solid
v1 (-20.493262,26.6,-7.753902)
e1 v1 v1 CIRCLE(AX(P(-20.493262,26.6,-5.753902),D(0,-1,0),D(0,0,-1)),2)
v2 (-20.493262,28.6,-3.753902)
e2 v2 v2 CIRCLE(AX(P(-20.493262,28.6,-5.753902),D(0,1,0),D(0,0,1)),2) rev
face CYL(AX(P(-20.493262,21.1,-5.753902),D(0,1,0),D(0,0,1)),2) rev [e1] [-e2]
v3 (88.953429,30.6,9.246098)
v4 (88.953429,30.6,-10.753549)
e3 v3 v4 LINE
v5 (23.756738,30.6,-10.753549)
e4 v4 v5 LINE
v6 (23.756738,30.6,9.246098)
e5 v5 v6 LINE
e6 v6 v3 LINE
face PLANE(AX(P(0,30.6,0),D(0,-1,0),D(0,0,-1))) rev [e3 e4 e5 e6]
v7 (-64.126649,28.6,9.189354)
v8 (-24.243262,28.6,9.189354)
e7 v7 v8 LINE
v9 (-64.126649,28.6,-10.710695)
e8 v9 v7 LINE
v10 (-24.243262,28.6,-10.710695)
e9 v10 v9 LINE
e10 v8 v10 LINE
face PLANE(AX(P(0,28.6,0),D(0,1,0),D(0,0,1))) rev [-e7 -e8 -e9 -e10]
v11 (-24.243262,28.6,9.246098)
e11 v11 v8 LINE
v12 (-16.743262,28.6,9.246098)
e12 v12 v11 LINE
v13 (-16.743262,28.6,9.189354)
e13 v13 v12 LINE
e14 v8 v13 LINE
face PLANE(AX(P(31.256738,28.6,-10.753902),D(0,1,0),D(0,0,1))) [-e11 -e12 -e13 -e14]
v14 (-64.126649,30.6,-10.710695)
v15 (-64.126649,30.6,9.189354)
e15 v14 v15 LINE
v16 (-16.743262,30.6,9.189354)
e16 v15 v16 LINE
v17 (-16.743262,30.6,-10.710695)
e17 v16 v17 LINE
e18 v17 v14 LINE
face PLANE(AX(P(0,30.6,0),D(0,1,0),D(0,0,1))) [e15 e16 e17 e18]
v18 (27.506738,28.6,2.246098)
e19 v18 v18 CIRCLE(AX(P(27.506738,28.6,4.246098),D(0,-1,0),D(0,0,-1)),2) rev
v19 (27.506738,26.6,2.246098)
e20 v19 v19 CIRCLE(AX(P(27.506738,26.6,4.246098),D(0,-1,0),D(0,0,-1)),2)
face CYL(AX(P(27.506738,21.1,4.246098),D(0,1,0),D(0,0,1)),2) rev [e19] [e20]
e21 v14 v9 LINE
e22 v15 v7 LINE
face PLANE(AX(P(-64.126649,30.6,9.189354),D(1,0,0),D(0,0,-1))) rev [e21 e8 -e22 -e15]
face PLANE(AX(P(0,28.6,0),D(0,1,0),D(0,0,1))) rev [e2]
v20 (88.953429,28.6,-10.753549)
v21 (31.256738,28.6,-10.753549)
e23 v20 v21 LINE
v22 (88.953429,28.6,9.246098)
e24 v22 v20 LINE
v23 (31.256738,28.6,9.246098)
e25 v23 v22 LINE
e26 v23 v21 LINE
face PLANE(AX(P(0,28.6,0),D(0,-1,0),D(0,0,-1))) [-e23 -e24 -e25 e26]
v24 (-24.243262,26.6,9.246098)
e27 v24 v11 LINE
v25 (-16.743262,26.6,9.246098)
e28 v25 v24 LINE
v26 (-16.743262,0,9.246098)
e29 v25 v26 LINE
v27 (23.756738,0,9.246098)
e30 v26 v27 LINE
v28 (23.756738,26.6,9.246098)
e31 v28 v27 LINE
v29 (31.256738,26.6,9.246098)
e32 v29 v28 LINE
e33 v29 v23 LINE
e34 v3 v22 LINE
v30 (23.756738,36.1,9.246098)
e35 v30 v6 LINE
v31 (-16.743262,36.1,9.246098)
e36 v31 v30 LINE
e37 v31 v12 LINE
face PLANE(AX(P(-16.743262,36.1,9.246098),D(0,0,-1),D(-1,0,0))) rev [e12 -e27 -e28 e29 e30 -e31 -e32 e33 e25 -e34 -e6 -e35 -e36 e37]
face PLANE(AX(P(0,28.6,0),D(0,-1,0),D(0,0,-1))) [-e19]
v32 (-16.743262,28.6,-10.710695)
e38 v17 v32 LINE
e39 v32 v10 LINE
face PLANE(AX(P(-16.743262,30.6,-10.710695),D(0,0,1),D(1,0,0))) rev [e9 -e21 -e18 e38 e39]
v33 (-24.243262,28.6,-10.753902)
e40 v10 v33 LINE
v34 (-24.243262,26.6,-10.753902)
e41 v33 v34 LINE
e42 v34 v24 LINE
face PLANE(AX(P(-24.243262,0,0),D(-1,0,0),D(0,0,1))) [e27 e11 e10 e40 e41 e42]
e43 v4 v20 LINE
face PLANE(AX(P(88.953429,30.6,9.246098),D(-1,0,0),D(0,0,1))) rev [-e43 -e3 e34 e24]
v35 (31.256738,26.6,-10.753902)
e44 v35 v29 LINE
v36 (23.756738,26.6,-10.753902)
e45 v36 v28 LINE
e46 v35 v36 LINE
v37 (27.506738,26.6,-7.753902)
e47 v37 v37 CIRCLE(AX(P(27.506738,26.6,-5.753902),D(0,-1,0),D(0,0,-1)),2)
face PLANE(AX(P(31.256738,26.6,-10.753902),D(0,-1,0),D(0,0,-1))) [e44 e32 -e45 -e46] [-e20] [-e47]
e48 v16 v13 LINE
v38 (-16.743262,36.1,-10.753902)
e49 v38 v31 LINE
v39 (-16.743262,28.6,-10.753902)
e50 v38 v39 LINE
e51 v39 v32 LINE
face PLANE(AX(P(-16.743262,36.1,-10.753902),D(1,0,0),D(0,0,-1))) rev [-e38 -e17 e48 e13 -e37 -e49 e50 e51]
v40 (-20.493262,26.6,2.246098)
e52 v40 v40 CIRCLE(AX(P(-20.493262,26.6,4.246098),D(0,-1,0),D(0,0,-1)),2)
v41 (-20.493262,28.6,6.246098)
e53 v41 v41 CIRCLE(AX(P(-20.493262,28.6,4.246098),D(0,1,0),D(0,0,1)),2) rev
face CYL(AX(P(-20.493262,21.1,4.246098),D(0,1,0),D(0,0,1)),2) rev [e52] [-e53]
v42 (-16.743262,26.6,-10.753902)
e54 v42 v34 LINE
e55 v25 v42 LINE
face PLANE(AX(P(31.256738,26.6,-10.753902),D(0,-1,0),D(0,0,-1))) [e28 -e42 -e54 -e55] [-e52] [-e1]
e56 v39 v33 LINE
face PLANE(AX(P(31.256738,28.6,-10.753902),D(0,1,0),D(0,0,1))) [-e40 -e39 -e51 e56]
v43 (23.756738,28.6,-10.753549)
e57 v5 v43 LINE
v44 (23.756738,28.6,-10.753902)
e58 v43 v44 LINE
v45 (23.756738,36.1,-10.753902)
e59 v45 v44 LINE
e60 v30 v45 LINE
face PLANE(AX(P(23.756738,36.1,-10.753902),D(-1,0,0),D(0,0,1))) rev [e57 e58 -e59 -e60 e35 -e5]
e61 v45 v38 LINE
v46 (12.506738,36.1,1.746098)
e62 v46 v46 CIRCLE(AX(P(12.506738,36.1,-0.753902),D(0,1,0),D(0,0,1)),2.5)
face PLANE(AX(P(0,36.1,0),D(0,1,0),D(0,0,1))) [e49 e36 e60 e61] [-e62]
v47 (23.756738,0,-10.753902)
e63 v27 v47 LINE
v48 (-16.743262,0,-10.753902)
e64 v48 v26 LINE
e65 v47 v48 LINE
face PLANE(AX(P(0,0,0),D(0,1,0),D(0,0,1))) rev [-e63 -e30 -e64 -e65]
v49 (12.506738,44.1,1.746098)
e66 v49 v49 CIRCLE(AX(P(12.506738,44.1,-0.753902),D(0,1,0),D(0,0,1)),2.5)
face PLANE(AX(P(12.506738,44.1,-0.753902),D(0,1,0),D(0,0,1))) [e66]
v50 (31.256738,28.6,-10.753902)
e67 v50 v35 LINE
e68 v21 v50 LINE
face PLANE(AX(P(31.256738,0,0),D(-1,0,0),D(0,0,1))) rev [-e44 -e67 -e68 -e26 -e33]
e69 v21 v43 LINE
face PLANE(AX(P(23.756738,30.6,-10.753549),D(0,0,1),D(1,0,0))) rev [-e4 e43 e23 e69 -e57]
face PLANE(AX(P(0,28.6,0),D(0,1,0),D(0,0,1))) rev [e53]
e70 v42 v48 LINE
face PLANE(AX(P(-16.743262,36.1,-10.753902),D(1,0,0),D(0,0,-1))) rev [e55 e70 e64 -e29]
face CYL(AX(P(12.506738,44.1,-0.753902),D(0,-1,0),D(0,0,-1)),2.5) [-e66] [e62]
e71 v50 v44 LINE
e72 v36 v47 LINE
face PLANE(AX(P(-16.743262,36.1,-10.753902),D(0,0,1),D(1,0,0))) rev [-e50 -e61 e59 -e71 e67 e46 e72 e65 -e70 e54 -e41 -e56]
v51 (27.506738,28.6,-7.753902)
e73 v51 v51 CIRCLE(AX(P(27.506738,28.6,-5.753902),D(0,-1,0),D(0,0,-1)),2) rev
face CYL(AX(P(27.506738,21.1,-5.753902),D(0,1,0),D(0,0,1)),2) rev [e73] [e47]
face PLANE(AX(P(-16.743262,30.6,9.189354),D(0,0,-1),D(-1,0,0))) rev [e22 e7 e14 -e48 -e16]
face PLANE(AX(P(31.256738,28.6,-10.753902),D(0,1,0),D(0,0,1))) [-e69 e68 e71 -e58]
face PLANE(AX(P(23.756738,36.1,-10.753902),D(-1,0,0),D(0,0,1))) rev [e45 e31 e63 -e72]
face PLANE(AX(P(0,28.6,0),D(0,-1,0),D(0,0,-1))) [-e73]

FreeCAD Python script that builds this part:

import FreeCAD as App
import Part
import Sketcher
from FreeCAD import Vector


def add_polygon(sketch, points):
    """Adds a closed chain of lines whose ends are joined by coincident constraints."""
    first, n = sketch.GeometryCount, len(points)
    for a, b in zip(points, points[1:] + points[:1]):
        sketch.addGeometry(Part.LineSegment(App.Vector(*a, 0), App.Vector(*b, 0)), False)
    for i in range(n):
        sketch.addConstraint(Sketcher.Constraint("Coincident", first + i, 2, first + (i + 1) % n, 1))

doc = App.newDocument("Part")
body = doc.addObject("PartDesign::Body", "Body")

# Sketch on XZ plane
sketch1 = body.newObject("Sketcher::SketchObject", "Sketch")
sketch1.AttachmentSupport = (doc.getObject("XZ_Plane"), [""])
sketch1.MapMode = "FlatFace"
add_polygon(sketch1, [(-17, -11), (-17, 9), (24, 9), (24, -11)])  # lines 0-3
sketch1.addConstraint([
    Sketcher.Constraint("Vertical", 0),
    Sketcher.Constraint("Horizontal", 1),
    Sketcher.Constraint("Vertical", 2),
    Sketcher.Constraint("Horizontal", 3),
    Sketcher.Constraint("DistanceY", 0, 1, 0, 2, 20.0),
    Sketcher.Constraint("DistanceX", 1, 1, 1, 2, 40.5),
    Sketcher.Constraint("DistanceY", -1, 1, 0, 2, 9.246098),
    Sketcher.Constraint("DistanceX", 0, 2, -1, 1, 16.743262),
])
pad1 = body.newObject("PartDesign::Pad", "Pad")
pad1.Profile = sketch1
pad1.Length = 36.1
pad1.Reversed = True

# Sketch on XZ plane
sketch2 = body.newObject("Sketcher::SketchObject", "Sketch001")
sketch2.AttachmentSupport = (doc.getObject("XZ_Plane"), [""])
sketch2.MapMode = "FlatFace"
sketch2.AttachmentOffset = App.Placement(Vector(0, 0, -36.1), App.Rotation())
sketch2.addGeometry(Part.Circle(Vector(12.5, -0.8, 0), Vector(0, 0, 1), 2.5), False)
sketch2.addConstraint([
    Sketcher.Constraint("Diameter", 0, 5.0),
    Sketcher.Constraint("DistanceY", 0, 3, -1, 1, 0.753902),
    Sketcher.Constraint("DistanceX", -1, 1, 0, 3, 12.506738),
])
pad2 = body.newObject("PartDesign::Pad", "Pad001")
pad2.Profile = sketch2
pad2.Length = 8
pad2.Reversed = True

# Sketch on YZ plane
sketch3 = body.newObject("Sketcher::SketchObject", "Sketch002")
sketch3.AttachmentSupport = (doc.getObject("YZ_Plane"), [""])
sketch3.MapMode = "FlatFace"
sketch3.AttachmentOffset = App.Placement(Vector(0, 0, -16.743262), App.Rotation())
add_polygon(sketch3, [(28.6, -10.8), (26.6, -10.8), (26.6, 9.2), (28.6, 9.2)])  # lines 0-3
sketch3.addConstraint([
    Sketcher.Constraint("Horizontal", 0),
    Sketcher.Constraint("Vertical", 1),
    Sketcher.Constraint("Horizontal", 2),
    Sketcher.Constraint("Vertical", 3),
    Sketcher.Constraint("DistanceX", 0, 2, 0, 1, 2.0),
    Sketcher.Constraint("DistanceY", 1, 1, 1, 2, 20.0),
    Sketcher.Constraint("DistanceX", -1, 1, 0, 2, 26.6),
    Sketcher.Constraint("DistanceY", 0, 2, -1, 1, 10.753902),
])
pad3 = body.newObject("PartDesign::Pad", "Pad002")
pad3.Profile = sketch3
pad3.Type = "TwoLengths"
pad3.Length = 7.5
pad3.Length2 = 48
pad3.Reversed = True

# Sketch on XZ plane
sketch4 = body.newObject("Sketcher::SketchObject", "Sketch003")
sketch4.AttachmentSupport = (doc.getObject("XZ_Plane"), [""])
sketch4.MapMode = "FlatFace"
sketch4.AttachmentOffset = App.Placement(Vector(0, 0, -28.6), App.Rotation())
sketch4.addGeometry([
    Part.Circle(Vector(-20.5, -5.8, 0), Vector(0, 0, 1), 2),
    Part.Circle(Vector(27.5, -5.8, 0), Vector(0, 0, 1), 2),
    Part.Circle(Vector(-20.5, 4.2, 0), Vector(0, 0, 1), 2),
    Part.Circle(Vector(27.5, 4.2, 0), Vector(0, 0, 1), 2),
], False)
sketch4.addConstraint([
    Sketcher.Constraint("Equal", 0, 1),
    Sketcher.Constraint("Equal", 1, 2),
    Sketcher.Constraint("Equal", 2, 3),
    Sketcher.Constraint("Horizontal", 0, 3, 1, 3),
    Sketcher.Constraint("Horizontal", 2, 3, 3, 3),
    Sketcher.Constraint("Vertical", 0, 3, 2, 3),
    Sketcher.Constraint("Vertical", 1, 3, 3, 3),
    Sketcher.Constraint("Diameter", 0, 4.0),
    Sketcher.Constraint("DistanceX", 0, 3, 1, 3, 48.0),
    Sketcher.Constraint("DistanceY", 0, 3, 2, 3, 10.0),
    Sketcher.Constraint("DistanceY", 0, 3, -1, 1, 5.753902),
    Sketcher.Constraint("DistanceX", 0, 3, -1, 1, 20.493262),
])
pocket1 = body.newObject("PartDesign::Pocket", "Pocket")
pocket1.Profile = sketch4
pocket1.Length = 7.5
pocket1.Reversed = True

# Sketch on XZ plane
sketch5 = body.newObject("Sketcher::SketchObject", "Sketch004")
sketch5.AttachmentSupport = (doc.getObject("XZ_Plane"), [""])
sketch5.MapMode = "FlatFace"
sketch5.AttachmentOffset = App.Placement(Vector(0, 0, -28.6), App.Rotation())
add_polygon(sketch5, [(-64, -11), (-64, 9), (-17, 9), (-17, -11)])  # lines 0-3
add_polygon(sketch5, [(24, -11), (24, 9), (89, 9), (89, -11)])  # lines 4-7
sketch5.addConstraint([
    Sketcher.Constraint("Vertical", 0),
    Sketcher.Constraint("Horizontal", 1),
    Sketcher.Constraint("Vertical", 2),
    Sketcher.Constraint("Horizontal", 3),
    Sketcher.Constraint("Vertical", 4),
    Sketcher.Constraint("Horizontal", 5),
    Sketcher.Constraint("Vertical", 6),
    Sketcher.Constraint("Horizontal", 7),
    Sketcher.Constraint("DistanceX", 1, 2, 4, 2, 40.5),
    Sketcher.Constraint("DistanceX", 5, 1, 5, 2, 65.196691),
    Sketcher.Constraint("DistanceY", 0, 1, 0, 2, 19.900048),
    Sketcher.Constraint("DistanceY", -1, 1, 4, 2, 9.246098),
    Sketcher.Constraint("DistanceX", 1, 1, 1, 2, 47.383387),
    Sketcher.Constraint("DistanceY", 4, 1, 4, 2, 19.999648),
    Sketcher.Constraint("DistanceX", 0, 2, -1, 1, 64.126649),
    Sketcher.Constraint("DistanceY", -1, 1, 0, 2, 9.189354),
])
pad4 = body.newObject("PartDesign::Pad", "Pad003")
pad4.Profile = sketch5
pad4.Length = 2
pad4.Reversed = True

doc.recompute()
